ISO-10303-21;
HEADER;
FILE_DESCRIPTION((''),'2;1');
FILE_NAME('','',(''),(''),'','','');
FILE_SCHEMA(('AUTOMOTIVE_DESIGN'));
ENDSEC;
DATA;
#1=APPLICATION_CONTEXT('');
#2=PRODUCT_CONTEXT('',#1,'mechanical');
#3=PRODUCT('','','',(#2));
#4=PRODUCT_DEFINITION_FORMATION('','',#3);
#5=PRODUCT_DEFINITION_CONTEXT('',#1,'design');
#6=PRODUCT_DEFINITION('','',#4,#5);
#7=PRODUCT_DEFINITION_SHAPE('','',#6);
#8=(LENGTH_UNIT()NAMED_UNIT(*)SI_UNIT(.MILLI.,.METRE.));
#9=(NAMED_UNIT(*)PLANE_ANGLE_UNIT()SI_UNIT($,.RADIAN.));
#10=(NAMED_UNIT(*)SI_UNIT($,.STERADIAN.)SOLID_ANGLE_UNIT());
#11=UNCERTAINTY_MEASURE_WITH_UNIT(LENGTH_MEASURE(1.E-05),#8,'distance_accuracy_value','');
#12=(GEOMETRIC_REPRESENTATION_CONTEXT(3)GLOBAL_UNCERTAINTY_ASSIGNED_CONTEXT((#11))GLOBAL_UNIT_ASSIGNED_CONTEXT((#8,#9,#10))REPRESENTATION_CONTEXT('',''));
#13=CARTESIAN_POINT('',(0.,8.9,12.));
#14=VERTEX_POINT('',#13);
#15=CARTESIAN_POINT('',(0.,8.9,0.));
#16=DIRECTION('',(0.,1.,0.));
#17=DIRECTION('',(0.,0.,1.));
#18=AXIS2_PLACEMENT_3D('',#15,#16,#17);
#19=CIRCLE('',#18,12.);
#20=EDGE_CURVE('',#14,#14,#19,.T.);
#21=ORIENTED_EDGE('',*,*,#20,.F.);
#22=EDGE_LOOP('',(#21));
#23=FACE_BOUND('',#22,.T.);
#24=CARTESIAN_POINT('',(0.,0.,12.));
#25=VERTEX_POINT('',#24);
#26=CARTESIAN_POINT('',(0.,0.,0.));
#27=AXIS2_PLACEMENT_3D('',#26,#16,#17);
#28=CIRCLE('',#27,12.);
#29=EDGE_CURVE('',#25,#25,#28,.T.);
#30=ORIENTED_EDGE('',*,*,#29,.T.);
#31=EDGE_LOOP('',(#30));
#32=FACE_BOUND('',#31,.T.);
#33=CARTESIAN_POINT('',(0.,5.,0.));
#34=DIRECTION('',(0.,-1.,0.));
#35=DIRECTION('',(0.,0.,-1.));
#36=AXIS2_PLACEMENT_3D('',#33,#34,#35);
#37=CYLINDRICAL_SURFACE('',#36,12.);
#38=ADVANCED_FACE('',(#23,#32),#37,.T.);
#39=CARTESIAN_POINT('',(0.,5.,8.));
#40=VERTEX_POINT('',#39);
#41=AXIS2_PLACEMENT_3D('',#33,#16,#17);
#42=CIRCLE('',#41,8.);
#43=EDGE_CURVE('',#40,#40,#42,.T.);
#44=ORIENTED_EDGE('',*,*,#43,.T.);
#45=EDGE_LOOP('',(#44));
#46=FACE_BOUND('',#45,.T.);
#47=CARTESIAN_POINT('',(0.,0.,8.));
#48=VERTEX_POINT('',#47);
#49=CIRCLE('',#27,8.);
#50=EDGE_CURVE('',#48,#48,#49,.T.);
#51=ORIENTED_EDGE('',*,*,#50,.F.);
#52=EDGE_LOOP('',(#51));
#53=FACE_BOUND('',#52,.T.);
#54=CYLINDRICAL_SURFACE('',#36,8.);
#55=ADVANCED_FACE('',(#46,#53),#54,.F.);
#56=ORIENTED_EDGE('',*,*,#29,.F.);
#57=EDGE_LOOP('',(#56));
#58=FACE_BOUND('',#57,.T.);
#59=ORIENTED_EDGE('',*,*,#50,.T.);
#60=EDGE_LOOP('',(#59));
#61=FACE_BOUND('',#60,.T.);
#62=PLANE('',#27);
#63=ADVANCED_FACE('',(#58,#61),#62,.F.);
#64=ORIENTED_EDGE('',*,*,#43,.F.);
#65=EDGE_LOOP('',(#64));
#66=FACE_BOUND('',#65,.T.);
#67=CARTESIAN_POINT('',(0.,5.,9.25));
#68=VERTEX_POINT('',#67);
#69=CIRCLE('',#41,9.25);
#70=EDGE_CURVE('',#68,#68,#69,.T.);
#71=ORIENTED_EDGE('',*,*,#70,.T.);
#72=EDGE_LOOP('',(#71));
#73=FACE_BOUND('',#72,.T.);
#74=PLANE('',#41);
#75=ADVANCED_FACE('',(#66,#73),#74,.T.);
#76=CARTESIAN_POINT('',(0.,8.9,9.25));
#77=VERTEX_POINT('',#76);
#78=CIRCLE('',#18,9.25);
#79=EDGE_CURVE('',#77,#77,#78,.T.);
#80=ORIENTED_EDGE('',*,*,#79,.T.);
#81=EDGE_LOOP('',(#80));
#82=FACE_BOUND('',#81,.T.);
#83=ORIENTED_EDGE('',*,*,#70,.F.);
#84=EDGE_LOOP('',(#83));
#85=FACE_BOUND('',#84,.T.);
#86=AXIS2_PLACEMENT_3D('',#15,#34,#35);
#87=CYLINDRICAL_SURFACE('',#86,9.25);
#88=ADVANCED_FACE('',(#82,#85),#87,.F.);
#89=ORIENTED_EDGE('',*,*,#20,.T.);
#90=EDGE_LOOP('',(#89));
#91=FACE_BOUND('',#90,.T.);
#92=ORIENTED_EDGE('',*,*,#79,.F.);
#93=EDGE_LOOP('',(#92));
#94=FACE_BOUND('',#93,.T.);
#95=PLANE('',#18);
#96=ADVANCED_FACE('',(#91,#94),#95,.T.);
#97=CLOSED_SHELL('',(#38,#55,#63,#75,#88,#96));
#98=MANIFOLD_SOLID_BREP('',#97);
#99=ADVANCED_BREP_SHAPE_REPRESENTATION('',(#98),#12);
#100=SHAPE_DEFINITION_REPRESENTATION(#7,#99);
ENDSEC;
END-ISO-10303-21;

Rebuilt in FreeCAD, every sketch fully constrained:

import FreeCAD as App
import Part
import Sketcher

doc = App.newDocument("Part")
body = doc.addObject("PartDesign::Body", "Body")

# Sketch on XZ plane
sketch1 = doc.addObject("Sketcher::SketchObject", "Sketch")
body.addObject(sketch1)
sketch1.AttachmentSupport = (doc.XZ_Plane, [""])
sketch1.MapMode = "FlatFace"
sketch1.addGeometry([
    Part.Circle(App.Vector(0, 0, 0), App.Vector(0, 0, 1), 12),
    Part.Circle(App.Vector(0, 0, 0), App.Vector(0, 0, 1), 8),
], False)
sketch1.addConstraint([
    Sketcher.Constraint("Coincident", 0, 3, -1, 1),
    Sketcher.Constraint("Coincident", 1, 3, -1, 1),
    Sketcher.Constraint("Diameter", 0, 24.0),
    Sketcher.Constraint("Diameter", 1, 16.0),
])
pad1 = doc.addObject("PartDesign::Pad", "Pad")
body.addObject(pad1)
pad1.Profile = sketch1
pad1.Length = 5
pad1.Reversed = True

# Sketch on XZ plane
sketch2 = doc.addObject("Sketcher::SketchObject", "Sketch001")
body.addObject(sketch2)
sketch2.AttachmentSupport = (doc.XZ_Plane, [""])
sketch2.MapMode = "FlatFace"
sketch2.AttachmentOffset = App.Placement(App.Vector(0, 0, -5), App.Rotation())
sketch2.addGeometry([
    Part.Circle(App.Vector(0, 0, 0), App.Vector(0, 0, 1), 12),
    Part.Circle(App.Vector(0, 0, 0), App.Vector(0, 0, 1), 9),
], False)
sketch2.addConstraint([
    Sketcher.Constraint("Coincident", 0, 3, -1, 1),
    Sketcher.Constraint("Coincident", 1, 3, -1, 1),
    Sketcher.Constraint("Diameter", 0, 24.0),
    Sketcher.Constraint("Diameter", 1, 18.5),
])
pad2 = doc.addObject("PartDesign::Pad", "Pad001")
body.addObject(pad2)
pad2.Profile = sketch2
pad2.Length = 3.9
pad2.Reversed = True

doc.recompute()
